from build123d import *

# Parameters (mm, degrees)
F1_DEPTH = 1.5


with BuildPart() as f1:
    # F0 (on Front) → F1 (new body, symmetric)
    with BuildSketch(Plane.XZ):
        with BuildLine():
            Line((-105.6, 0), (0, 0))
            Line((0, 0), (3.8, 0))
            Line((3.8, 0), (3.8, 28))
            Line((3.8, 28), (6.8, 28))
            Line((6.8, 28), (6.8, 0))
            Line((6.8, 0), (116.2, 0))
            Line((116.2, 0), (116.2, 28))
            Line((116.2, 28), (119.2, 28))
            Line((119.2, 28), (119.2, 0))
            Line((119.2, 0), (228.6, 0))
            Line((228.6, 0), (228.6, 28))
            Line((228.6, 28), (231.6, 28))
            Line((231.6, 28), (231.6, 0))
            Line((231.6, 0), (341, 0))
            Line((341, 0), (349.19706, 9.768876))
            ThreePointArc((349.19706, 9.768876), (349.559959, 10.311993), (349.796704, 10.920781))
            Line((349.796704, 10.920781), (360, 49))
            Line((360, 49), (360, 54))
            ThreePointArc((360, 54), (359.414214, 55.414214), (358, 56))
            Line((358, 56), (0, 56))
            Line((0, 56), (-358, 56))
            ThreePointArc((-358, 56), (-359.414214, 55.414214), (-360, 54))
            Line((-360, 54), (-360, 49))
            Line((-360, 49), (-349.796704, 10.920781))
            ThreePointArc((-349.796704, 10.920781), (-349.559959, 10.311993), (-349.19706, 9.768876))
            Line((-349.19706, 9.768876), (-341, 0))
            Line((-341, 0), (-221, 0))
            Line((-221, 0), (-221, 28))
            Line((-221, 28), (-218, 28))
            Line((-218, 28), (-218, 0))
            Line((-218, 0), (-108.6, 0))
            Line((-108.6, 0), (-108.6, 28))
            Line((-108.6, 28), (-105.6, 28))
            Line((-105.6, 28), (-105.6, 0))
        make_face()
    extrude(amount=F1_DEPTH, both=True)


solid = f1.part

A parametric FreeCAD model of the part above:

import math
import FreeCAD as App
import Part
import Sketcher
from FreeCAD import Vector
Q = App.Units.Quantity

doc = App.newDocument("Part")
params = doc.addObject("Spreadsheet::Sheet", "Params")
for row, (alias, value) in enumerate([
    ("sketch1_radius", "1.999999 mm"),
    ("sketch1_width", "3 mm"),
    ("sketch1_width2", "716 mm"),
    ("sketch1_width3", "120 mm"),
    ("sketch1_height", "28 mm"),
    ("pad1_length", "3 mm"),
], start=1):
    params.set(f"A{row}", alias)
    params.set(f"B{row}", "=" + value)
    params.setAlias(f"B{row}", alias)

body = doc.addObject("PartDesign::Body", "Body")

sketch1 = body.newObject("Sketcher::SketchObject", "Sketch")
sketch1.AttachmentSupport = (doc.getObject("XZ_Plane"), [""])
sketch1.MapMode = "FlatFace"
sketch1.addGeometry([
    Part.LineSegment(Vector(-105.6, 0, 0), Vector(3.8, 0, 0)),
    Part.LineSegment(Vector(3.8, 0, 0), Vector(3.8, 28, 0)),
    Part.LineSegment(Vector(3.8, 28, 0), Vector(6.8, 28, 0)),
    Part.LineSegment(Vector(6.8, 28, 0), Vector(6.8, 0, 0)),
    Part.LineSegment(Vector(6.8, 0, 0), Vector(116.2, 0, 0)),
    Part.LineSegment(Vector(116.2, 0, 0), Vector(116.2, 28, 0)),
    Part.LineSegment(Vector(116.2, 28, 0), Vector(119.2, 28, 0)),
    Part.LineSegment(Vector(119.2, 28, 0), Vector(119.2, 0, 0)),
    Part.LineSegment(Vector(119.2, 0, 0), Vector(228.6, 0, 0)),
    Part.LineSegment(Vector(228.6, 0, 0), Vector(228.6, 28, 0)),
    Part.LineSegment(Vector(228.6, 28, 0), Vector(231.6, 28, 0)),
    Part.LineSegment(Vector(231.6, 28, 0), Vector(231.6, 0, 0)),
    Part.LineSegment(Vector(231.6, 0, 0), Vector(341, 0, 0)),
    Part.LineSegment(Vector(341, 0, 0), Vector(349.19706, 9.768876, 0)),
    Part.ArcOfCircle(Part.Circle(Vector(346.89892, 11.697242, 0), Vector(0, 0, 1), 3.000007), math.radians(-39.999971), math.radians(-15.000045)),
    Part.LineSegment(Vector(349.796704, 10.920781, 0), Vector(360, 49, 0)),
    Part.LineSegment(Vector(360, 49, 0), Vector(360, 54, 0)),
    Part.ArcOfCircle(Part.Circle(Vector(358.000001, 54.000001, 0), Vector(0, 0, 1), 1.999999), math.radians(-0.000043), math.radians(90.000043)),
    Part.LineSegment(Vector(358, 56, 0), Vector(-358, 56, 0)),
    Part.ArcOfCircle(Part.Circle(Vector(-358.000001, 54.000001, 0), Vector(0, 0, 1), 1.999999), math.radians(89.999957), math.radians(180.000043)),
    Part.LineSegment(Vector(-360, 54, 0), Vector(-360, 49, 0)),
    Part.LineSegment(Vector(-360, 49, 0), Vector(-349.796704, 10.920781, 0)),
    Part.ArcOfCircle(Part.Circle(Vector(-346.89892, 11.697242, 0), Vector(0, 0, 1), 3.000007), math.radians(-164.999955), math.radians(-140.000029)),
    Part.LineSegment(Vector(-349.19706, 9.768876, 0), Vector(-341, 0, 0)),
    Part.LineSegment(Vector(-341, 0, 0), Vector(-221, 0, 0)),
    Part.LineSegment(Vector(-221, 0, 0), Vector(-221, 28, 0)),
    Part.LineSegment(Vector(-221, 28, 0), Vector(-218, 28, 0)),
    Part.LineSegment(Vector(-218, 28, 0), Vector(-218, 0, 0)),
    Part.LineSegment(Vector(-218, 0, 0), Vector(-108.6, 0, 0)),
    Part.LineSegment(Vector(-108.6, 0, 0), Vector(-108.6, 28, 0)),
    Part.LineSegment(Vector(-108.6, 28, 0), Vector(-105.6, 28, 0)),
    Part.LineSegment(Vector(-105.6, 28, 0), Vector(-105.6, 0, 0)),
], False)
sketch1.addConstraint([
    Sketcher.Constraint("Coincident", 0, 2, 1, 1),
    Sketcher.Constraint("Coincident", 1, 2, 2, 1),
    Sketcher.Constraint("Coincident", 2, 2, 3, 1),
    Sketcher.Constraint("Coincident", 3, 2, 4, 1),
    Sketcher.Constraint("Coincident", 4, 2, 5, 1),
    Sketcher.Constraint("Coincident", 5, 2, 6, 1),
    Sketcher.Constraint("Coincident", 6, 2, 7, 1),
    Sketcher.Constraint("Coincident", 7, 2, 8, 1),
    Sketcher.Constraint("Coincident", 8, 2, 9, 1),
    Sketcher.Constraint("Coincident", 9, 2, 10, 1),
    Sketcher.Constraint("Coincident", 10, 2, 11, 1),
    Sketcher.Constraint("Coincident", 11, 2, 12, 1),
    Sketcher.Constraint("Coincident", 12, 2, 13, 1),
    Sketcher.Constraint("Tangent", 13, 2, 14, 1),
    Sketcher.Constraint("Tangent", 14, 2, 15, 1),
    Sketcher.Constraint("Coincident", 15, 2, 16, 1),
    Sketcher.Constraint("Tangent", 16, 2, 17, 1),
    Sketcher.Constraint("Tangent", 17, 2, 18, 1),
    Sketcher.Constraint("Tangent", 18, 2, 19, 1),
    Sketcher.Constraint("Tangent", 19, 2, 20, 1),
    Sketcher.Constraint("Coincident", 20, 2, 21, 1),
    Sketcher.Constraint("Tangent", 21, 2, 22, 1),
    Sketcher.Constraint("Tangent", 22, 2, 23, 1),
    Sketcher.Constraint("Coincident", 23, 2, 24, 1),
    Sketcher.Constraint("Coincident", 24, 2, 25, 1),
    Sketcher.Constraint("Coincident", 25, 2, 26, 1),
    Sketcher.Constraint("Coincident", 26, 2, 27, 1),
    Sketcher.Constraint("Coincident", 27, 2, 28, 1),
    Sketcher.Constraint("Coincident", 28, 2, 29, 1),
    Sketcher.Constraint("Coincident", 29, 2, 30, 1),
    Sketcher.Constraint("Coincident", 30, 2, 31, 1),
    Sketcher.Constraint("Coincident", 31, 2, 0, 1),
    Sketcher.Constraint("Horizontal", 0),
    Sketcher.Constraint("Vertical", 1),
    Sketcher.Constraint("Horizontal", 2),
    Sketcher.Constraint("Vertical", 3),
    Sketcher.Constraint("Horizontal", 4),
    Sketcher.Constraint("Vertical", 5),
    Sketcher.Constraint("Horizontal", 6),
    Sketcher.Constraint("Vertical", 7),
    Sketcher.Constraint("Horizontal", 8),
    Sketcher.Constraint("Vertical", 9),
    Sketcher.Constraint("Horizontal", 10),
    Sketcher.Constraint("Vertical", 11),
    Sketcher.Constraint("Horizontal", 12),
    Sketcher.Constraint("Vertical", 16),
    Sketcher.Constraint("Horizontal", 18),
    Sketcher.Constraint("Vertical", 20),
    Sketcher.Constraint("Horizontal", 24),
    Sketcher.Constraint("Vertical", 25),
    Sketcher.Constraint("Horizontal", 26),
    Sketcher.Constraint("Vertical", 27),
    Sketcher.Constraint("Horizontal", 28),
    Sketcher.Constraint("Vertical", 29),
    Sketcher.Constraint("Horizontal", 30),
    Sketcher.Constraint("Vertical", 31),
    Sketcher.Constraint("Equal", 17, 19),
    Sketcher.Constraint("Equal", 14, 22),
    Sketcher.Constraint("Symmetric", 12, 2, 23, 2, -1, 1),
    Sketcher.Constraint("Symmetric", 14, 3, 22, 3, -2),
    Sketcher.Constraint("Symmetric", 15, 2, 20, 2, -2),
    Sketcher.Constraint("PointOnObject", 0, 2, -1),
    Sketcher.Constraint("PointOnObject", 3, 2, -1),
    Sketcher.Constraint("PointOnObject", 7, 2, -1),
    Sketcher.Constraint("PointOnObject", 11, 2, -1),
    Sketcher.Constraint("PointOnObject", 27, 2, -1),
    Sketcher.Constraint("Horizontal", 2, 2, 5, 2),
    Sketcher.Constraint("Horizontal", 6, 2, 9, 2),
    Sketcher.Constraint("Horizontal", 10, 2, 25, 2),
    Sketcher.Constraint("Horizontal", 26, 2, 29, 2),
    Sketcher.Constraint("Equal", 0, 4),
    Sketcher.Constraint("Equal", 2, 6),
    Sketcher.Constraint("Equal", 4, 8),
    Sketcher.Constraint("Equal", 6, 10),
    Sketcher.Constraint("Equal", 8, 12),
    Sketcher.Constraint("Equal", 10, 26),
    Sketcher.Constraint("Equal", 12, 28),
    Sketcher.Constraint("Equal", 26, 30),
    Sketcher.Constraint("Radius", 17, 1.999999),
    Sketcher.Constraint("DistanceX", 2, 1, 2, 2, 3.0),
    Sketcher.Constraint("DistanceX", 18, 2, 18, 1, 716.0),
    Sketcher.Constraint("DistanceX", 24, 1, 24, 2, 120.0),
    Sketcher.Constraint("DistanceY", 1, 1, 1, 2, 28.0),
    Sketcher.Constraint("DistanceY", 16, 1, 16, 2, 5.0),
    Sketcher.Constraint("Angle", 13, Q("50.000001 deg")),
    Sketcher.Constraint("Angle", 15, Q("75 deg")),
    Sketcher.Constraint("DistanceX", 0, 1, 0, 2, 109.4),
    Sketcher.Constraint("DistanceY", -1, 1, 17, 3, 54.000001),
    Sketcher.Constraint("Radius", 14, 3.000007),
])
sketch1.setExpression("Constraints[78]", "Params.sketch1_radius")
sketch1.setExpression("Constraints[79]", "Params.sketch1_width")
sketch1.setExpression("Constraints[80]", "Params.sketch1_width2")
sketch1.setExpression("Constraints[81]", "Params.sketch1_width3")
sketch1.setExpression("Constraints[82]", "Params.sketch1_height")
pad1 = body.newObject("PartDesign::Pad", "Pad")
pad1.Profile = sketch1
pad1.setExpression("Length", "Params.pad1_length")
pad1.Midplane = True

doc.recompute()
